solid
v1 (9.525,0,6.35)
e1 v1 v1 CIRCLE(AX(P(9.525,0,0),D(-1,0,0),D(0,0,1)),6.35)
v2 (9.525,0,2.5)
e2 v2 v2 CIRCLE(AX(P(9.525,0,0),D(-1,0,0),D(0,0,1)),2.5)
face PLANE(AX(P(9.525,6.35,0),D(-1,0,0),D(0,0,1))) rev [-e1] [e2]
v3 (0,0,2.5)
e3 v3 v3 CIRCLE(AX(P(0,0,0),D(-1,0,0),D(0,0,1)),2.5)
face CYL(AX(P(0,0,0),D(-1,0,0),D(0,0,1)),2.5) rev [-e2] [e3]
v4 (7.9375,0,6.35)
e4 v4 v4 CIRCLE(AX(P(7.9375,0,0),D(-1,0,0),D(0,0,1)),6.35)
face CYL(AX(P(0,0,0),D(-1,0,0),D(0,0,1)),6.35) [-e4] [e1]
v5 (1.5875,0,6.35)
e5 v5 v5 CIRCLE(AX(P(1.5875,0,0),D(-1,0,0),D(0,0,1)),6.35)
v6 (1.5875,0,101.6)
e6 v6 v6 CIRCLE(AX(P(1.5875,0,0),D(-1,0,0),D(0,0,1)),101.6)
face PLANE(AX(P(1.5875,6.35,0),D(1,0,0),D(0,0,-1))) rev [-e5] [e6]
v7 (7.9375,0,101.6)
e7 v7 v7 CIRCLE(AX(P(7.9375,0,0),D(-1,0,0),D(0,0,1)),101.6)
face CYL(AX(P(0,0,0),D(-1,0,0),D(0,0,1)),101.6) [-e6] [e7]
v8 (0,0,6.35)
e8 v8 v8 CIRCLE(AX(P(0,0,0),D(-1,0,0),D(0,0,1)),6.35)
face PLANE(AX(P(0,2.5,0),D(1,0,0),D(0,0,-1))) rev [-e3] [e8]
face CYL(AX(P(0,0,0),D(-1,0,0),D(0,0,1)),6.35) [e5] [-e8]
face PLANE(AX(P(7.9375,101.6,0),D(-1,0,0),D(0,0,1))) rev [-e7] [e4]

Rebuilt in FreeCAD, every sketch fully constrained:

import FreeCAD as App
import Part
import Sketcher
from FreeCAD import Vector
Q = App.Units.Quantity

doc = App.newDocument("Part")
body = doc.addObject("PartDesign::Body", "Body")

# Sketch on XY plane
sketch1 = body.newObject("Sketcher::SketchObject", "Sketch")
sketch1.AttachmentSupport = (doc.getObject("XY_Plane"), [""])
sketch1.MapMode = "FlatFace"
sketch1.addGeometry([
    Part.LineSegment(Vector(1.6, 6.3, 0), Vector(0, 6.3, 0)),  # 0
    Part.LineSegment(Vector(0, 6.3, 0), Vector(0, 2.5, 0)),  # 1
    Part.LineSegment(Vector(0, 2.5, 0), Vector(9.5, 2.5, 0)),  # 2
    Part.LineSegment(Vector(9.5, 2.5, 0), Vector(9.5, 6.3, 0)),  # 3
    Part.LineSegment(Vector(9.5, 6.3, 0), Vector(7.9, 6.3, 0)),  # 4
    Part.LineSegment(Vector(7.9, 6.3, 0), Vector(7.9, 101.6, 0)),  # 5
    Part.LineSegment(Vector(7.9, 101.6, 0), Vector(1.6, 101.6, 0)),  # 6
    Part.LineSegment(Vector(1.6, 101.6, 0), Vector(1.6, 6.3, 0)),  # 7
], False)
sketch1.addConstraint([
    Sketcher.Constraint("Coincident", 0, 2, 1, 1),
    Sketcher.Constraint("Coincident", 1, 2, 2, 1),
    Sketcher.Constraint("Coincident", 2, 2, 3, 1),
    Sketcher.Constraint("Coincident", 3, 2, 4, 1),
    Sketcher.Constraint("Coincident", 4, 2, 5, 1),
    Sketcher.Constraint("Coincident", 5, 2, 6, 1),
    Sketcher.Constraint("Coincident", 6, 2, 7, 1),
    Sketcher.Constraint("Coincident", 7, 2, 0, 1),
    Sketcher.Constraint("Horizontal", 0),
    Sketcher.Constraint("Vertical", 1),
    Sketcher.Constraint("Horizontal", 2),
    Sketcher.Constraint("Vertical", 3),
    Sketcher.Constraint("Horizontal", 4),
    Sketcher.Constraint("Vertical", 5),
    Sketcher.Constraint("Horizontal", 6),
    Sketcher.Constraint("Vertical", 7),
    Sketcher.Constraint("PointOnObject", 0, 2, -2),
    Sketcher.Constraint("Horizontal", 0, 2, 3, 2),
    Sketcher.Constraint("Equal", 0, 4),
    Sketcher.Constraint("DistanceY", -1, 1, 5, 2, Q("4 in")),
    Sketcher.Constraint("DistanceX", 6, 2, 6, 1, Q("0.25 in")),
    Sketcher.Constraint("DistanceY", 5, 1, 5, 2, Q("3.75 in")),
    Sketcher.Constraint("DistanceX", 0, 2, 0, 1, Q("0.0625 in")),
    Sketcher.Constraint("DistanceY", 1, 2, 1, 1, Q("3.85 mm")),
])
revolution = body.newObject("PartDesign::Revolution", "Revolution")
revolution.Profile = sketch1
revolution.ReferenceAxis = (sketch1, ["H_Axis"])
revolution.Angle = 360

doc.recompute()
